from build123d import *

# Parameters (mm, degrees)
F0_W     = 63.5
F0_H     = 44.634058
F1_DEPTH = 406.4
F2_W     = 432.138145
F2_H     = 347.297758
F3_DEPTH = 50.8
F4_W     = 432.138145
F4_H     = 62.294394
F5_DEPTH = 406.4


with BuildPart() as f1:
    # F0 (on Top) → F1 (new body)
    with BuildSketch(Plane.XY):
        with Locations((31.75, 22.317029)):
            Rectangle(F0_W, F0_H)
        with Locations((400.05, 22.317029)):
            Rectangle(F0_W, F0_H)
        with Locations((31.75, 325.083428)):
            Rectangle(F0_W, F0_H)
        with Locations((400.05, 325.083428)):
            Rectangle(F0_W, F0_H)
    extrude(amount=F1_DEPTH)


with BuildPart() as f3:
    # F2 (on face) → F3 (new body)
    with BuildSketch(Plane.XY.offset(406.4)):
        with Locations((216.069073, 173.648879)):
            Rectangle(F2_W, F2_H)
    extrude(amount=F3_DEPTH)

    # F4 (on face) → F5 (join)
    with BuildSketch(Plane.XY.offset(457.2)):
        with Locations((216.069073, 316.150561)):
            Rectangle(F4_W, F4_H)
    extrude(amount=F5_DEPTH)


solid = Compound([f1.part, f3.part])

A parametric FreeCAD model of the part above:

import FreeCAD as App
import Part
import Sketcher

V = App.Vector
Q = App.Units.Quantity


def add_polygon(sketch, points):
    """Adds a closed chain of lines whose ends are joined by coincident constraints."""
    first, n = sketch.GeometryCount, len(points)
    for a, b in zip(points, points[1:] + points[:1]):
        sketch.addGeometry(Part.LineSegment(App.Vector(*a, 0), App.Vector(*b, 0)), False)
    for i in range(n):
        sketch.addConstraint(Sketcher.Constraint("Coincident", first + i, 2, first + (i + 1) % n, 1))

doc = App.newDocument("Part")
params = doc.addObject("Spreadsheet::Sheet", "Params")
for row, (alias, value) in enumerate([
    ("sketch1_width", "2.5 in"),
    ("pad1_length", "16 in"),
    ("pad2_length", "2 in"),
    ("pad3_length", "16 in"),
], start=1):
    params.set(f"A{row}", alias)
    params.set(f"B{row}", "=" + value)
    params.setAlias(f"B{row}", alias)

body = doc.addObject("PartDesign::Body", "Body")
body.AllowCompound = True

# Sketch on XY plane
sketch1 = doc.addObject("Sketcher::SketchObject", "Sketch")
body.addObject(sketch1)
sketch1.AttachmentSupport = (doc.XY_Plane, [""])
sketch1.MapMode = "FlatFace"
add_polygon(sketch1, [(0, 45), (0, 0), (64, 0), (64, 45)])  # lines 0-3
add_polygon(sketch1, [(368, 45), (368, 0), (432, 0), (432, 45)])  # lines 4-7
add_polygon(sketch1, [(0, 347), (0, 303), (64, 303), (64, 347)])  # lines 8-11
add_polygon(sketch1, [(368, 347), (368, 303), (432, 303), (432, 347)])  # lines 12-15
sketch1.addConstraint([
    Sketcher.Constraint("Vertical", 0),
    Sketcher.Constraint("Horizontal", 1),
    Sketcher.Constraint("Vertical", 2),
    Sketcher.Constraint("Horizontal", 3),
    Sketcher.Constraint("Vertical", 4),
    Sketcher.Constraint("Horizontal", 5),
    Sketcher.Constraint("Vertical", 6),
    Sketcher.Constraint("Horizontal", 7),
    Sketcher.Constraint("Vertical", 8),
    Sketcher.Constraint("Horizontal", 9),
    Sketcher.Constraint("Vertical", 10),
    Sketcher.Constraint("Horizontal", 11),
    Sketcher.Constraint("Vertical", 12),
    Sketcher.Constraint("Horizontal", 13),
    Sketcher.Constraint("Vertical", 14),
    Sketcher.Constraint("Horizontal", 15),
    Sketcher.Constraint("Coincident", 0, 2, -1, 1),
    Sketcher.Constraint("PointOnObject", 4, 2, -1),
    Sketcher.Constraint("PointOnObject", 8, 2, -2),
    Sketcher.Constraint("Horizontal", 3, 2, 6, 2),
    Sketcher.Constraint("Horizontal", 9, 2, 12, 2),
    Sketcher.Constraint("Horizontal", 11, 2, 14, 2),
    Sketcher.Constraint("Vertical", 2, 2, 9, 2),
    Sketcher.Constraint("Vertical", 7, 2, 12, 2),
    Sketcher.Constraint("Vertical", 6, 2, 13, 2),
    Sketcher.Constraint("Equal", 3, 5),
    Sketcher.Constraint("Equal", 6, 8),
    Sketcher.Constraint("DistanceX", 1, 1, 1, 2, Q("2.5 in")),
    Sketcher.Constraint("DistanceX", -1, 1, 5, 2, Q("17 in")),
    Sketcher.Constraint("DistanceY", 0, 2, 0, 1, Q("44.634058 mm")),
    Sketcher.Constraint("DistanceY", -1, 1, 8, 2, Q("302.766399 mm")),
])
sketch1.setExpression("Constraints[43]", "Params.sketch1_width")
pad1 = doc.addObject("PartDesign::Pad", "Pad")
body.addObject(pad1)
pad1.Profile = sketch1
pad1.setExpression("Length", "Params.pad1_length")
body2 = doc.addObject("PartDesign::Body", "Body001")

# Sketch on XY plane
sketch2 = doc.addObject("Sketcher::SketchObject", "Sketch001")
body2.addObject(sketch2)
sketch2.AttachmentSupport = (doc.getObject("XY_Plane001"), [""])
sketch2.MapMode = "FlatFace"
sketch2.AttachmentOffset = App.Placement(V(0, 0, 16 * 25.4), App.Rotation())
add_polygon(sketch2, [(0, 347), (0, 0), (432, 0), (432, 347)])  # lines 0-3
sketch2.addConstraint([
    Sketcher.Constraint("Vertical", 0),
    Sketcher.Constraint("Horizontal", 1),
    Sketcher.Constraint("Vertical", 2),
    Sketcher.Constraint("Horizontal", 3),
    Sketcher.Constraint("Coincident", 0, 2, -1, 1),
    Sketcher.Constraint("DistanceY", 0, 2, 0, 1, Q("347.297758 mm")),
    Sketcher.Constraint("DistanceX", 1, 1, 1, 2, Q("432.138145 mm")),
])
pad2 = doc.addObject("PartDesign::Pad", "Pad001")
body2.addObject(pad2)
pad2.Profile = sketch2
pad2.setExpression("Length", "Params.pad2_length")

# Sketch on XY plane
sketch3 = doc.addObject("Sketcher::SketchObject", "Sketch002")
body2.addObject(sketch3)
sketch3.AttachmentSupport = (doc.getObject("XY_Plane001"), [""])
sketch3.MapMode = "FlatFace"
sketch3.AttachmentOffset = App.Placement(V(0, 0, 18 * 25.4), App.Rotation())
add_polygon(sketch3, [(0, 347), (0, 285), (432, 285), (432, 347)])  # lines 0-3
sketch3.addConstraint([
    Sketcher.Constraint("Vertical", 0),
    Sketcher.Constraint("Horizontal", 1),
    Sketcher.Constraint("Vertical", 2),
    Sketcher.Constraint("Horizontal", 3),
    Sketcher.Constraint("PointOnObject", 0, 2, -2),
    Sketcher.Constraint("DistanceX", 1, 1, 1, 2, Q("432.138145 mm")),
    Sketcher.Constraint("DistanceY", 0, 2, 0, 1, Q("62.294394 mm")),
    Sketcher.Constraint("DistanceY", -1, 1, 2, 2, Q("347.297758 mm")),
])
pad3 = doc.addObject("PartDesign::Pad", "Pad002")
body2.addObject(pad3)
pad3.Profile = sketch3
pad3.setExpression("Length", "Params.pad3_length")

doc.recompute()
